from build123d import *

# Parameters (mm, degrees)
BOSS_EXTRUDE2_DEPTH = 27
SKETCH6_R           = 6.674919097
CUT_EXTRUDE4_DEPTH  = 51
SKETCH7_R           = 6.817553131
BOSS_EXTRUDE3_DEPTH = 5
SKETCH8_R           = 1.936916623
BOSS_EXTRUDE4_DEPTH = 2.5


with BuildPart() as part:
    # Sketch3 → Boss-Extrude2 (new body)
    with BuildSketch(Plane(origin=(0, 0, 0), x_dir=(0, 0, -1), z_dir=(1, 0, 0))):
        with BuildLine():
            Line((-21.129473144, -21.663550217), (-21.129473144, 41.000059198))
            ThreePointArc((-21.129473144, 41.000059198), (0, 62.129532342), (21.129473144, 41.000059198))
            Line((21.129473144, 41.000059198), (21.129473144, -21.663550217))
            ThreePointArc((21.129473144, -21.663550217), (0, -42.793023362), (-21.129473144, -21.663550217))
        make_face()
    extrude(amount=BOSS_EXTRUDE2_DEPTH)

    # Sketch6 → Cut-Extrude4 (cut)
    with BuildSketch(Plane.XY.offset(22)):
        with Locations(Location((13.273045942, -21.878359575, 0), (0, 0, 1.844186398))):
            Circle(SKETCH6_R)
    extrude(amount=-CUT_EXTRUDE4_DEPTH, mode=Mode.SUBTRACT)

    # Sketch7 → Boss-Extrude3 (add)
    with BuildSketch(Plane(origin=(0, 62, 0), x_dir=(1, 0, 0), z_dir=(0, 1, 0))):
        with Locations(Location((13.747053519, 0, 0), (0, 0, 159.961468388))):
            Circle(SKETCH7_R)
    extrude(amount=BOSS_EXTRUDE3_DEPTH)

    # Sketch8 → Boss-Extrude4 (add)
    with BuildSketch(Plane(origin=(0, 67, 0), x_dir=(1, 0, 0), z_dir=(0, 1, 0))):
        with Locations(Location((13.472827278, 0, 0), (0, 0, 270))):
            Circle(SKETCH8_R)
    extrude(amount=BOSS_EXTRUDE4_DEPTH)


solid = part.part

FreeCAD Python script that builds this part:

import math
import FreeCAD as App
import Part
import Sketcher
from FreeCAD import Vector
Q = App.Units.Quantity

doc = App.newDocument("Part")
body = doc.addObject("PartDesign::Body", "Body")

sketch1 = body.newObject("Sketcher::SketchObject", "Sketch")
sketch1.AttachmentSupport = (doc.getObject("YZ_Plane"), [""])
sketch1.MapMode = "FlatFace"
sketch1.addGeometry(Part.LineSegment(Vector(41, 21, 0), Vector(-22, 21, 0)), False)
sketch1.addGeometry(Part.ArcOfCircle(Part.Circle(Vector(-22, 0, 0), Vector(0, 0, 1), 21), math.radians(90), math.radians(270)), False)
sketch1.addGeometry(Part.LineSegment(Vector(-22, -21, 0), Vector(41, -21, 0)), False)
sketch1.addGeometry(Part.ArcOfCircle(Part.Circle(Vector(41, 0, 0), Vector(0, 0, 1), 21), math.radians(-90), math.radians(90)), False)
sketch1.addConstraint(Sketcher.Constraint("Tangent", 0, 2, 1, 1))
sketch1.addConstraint(Sketcher.Constraint("Tangent", 1, 2, 2, 1))
sketch1.addConstraint(Sketcher.Constraint("Tangent", 2, 2, 3, 1))
sketch1.addConstraint(Sketcher.Constraint("Tangent", 3, 2, 0, 1))
sketch1.addConstraint(Sketcher.Constraint("Horizontal", 0))
sketch1.addConstraint(Sketcher.Constraint("Horizontal", 2))
sketch1.addConstraint(Sketcher.Constraint("PointOnObject", 1, 3, -1))
sketch1.addConstraint(Sketcher.Constraint("Radius", 1, Q("21.129473 mm")))
sketch1.addConstraint(Sketcher.Constraint("DistanceX", 0, 2, 0, 1, Q("62.663609 mm")))
sketch1.addConstraint(Sketcher.Constraint("DistanceX", 1, 3, -1, 1, Q("21.66355 mm")))
pad1 = body.newObject("PartDesign::Pad", "Pad")
pad1.Profile = sketch1
pad1.Length = 27

sketch2 = body.newObject("Sketcher::SketchObject", "Sketch001")
sketch2.AttachmentSupport = (doc.getObject("XY_Plane"), [""])
sketch2.MapMode = "FlatFace"
sketch2.AttachmentOffset = App.Placement(Vector(0, 0, 22), App.Rotation())
sketch2.addGeometry(Part.Circle(Vector(13, -22, 0), Vector(0, 0, 1), 7), False)
sketch2.addConstraint(Sketcher.Constraint("Diameter", 0, Q("13.349838 mm")))
sketch2.addConstraint(Sketcher.Constraint("DistanceY", 0, 3, -1, 1, Q("21.87836 mm")))
sketch2.addConstraint(Sketcher.Constraint("DistanceX", -1, 1, 0, 3, Q("13.273046 mm")))
pocket1 = body.newObject("PartDesign::Pocket", "Pocket")
pocket1.Profile = sketch2
pocket1.Length = 51

sketch3 = body.newObject("Sketcher::SketchObject", "Sketch002")
sketch3.AttachmentSupport = (doc.getObject("XZ_Plane"), [""])
sketch3.MapMode = "FlatFace"
sketch3.AttachmentOffset = App.Placement(Vector(0, 0, -62), App.Rotation())
sketch3.addGeometry(Part.Circle(Vector(14, 0, 0), Vector(0, 0, 1), 7), False)
sketch3.addConstraint(Sketcher.Constraint("PointOnObject", 0, 3, -1))
sketch3.addConstraint(Sketcher.Constraint("Diameter", 0, Q("13.635106 mm")))
sketch3.addConstraint(Sketcher.Constraint("DistanceX", -1, 1, 0, 3, Q("13.747054 mm")))
pad2 = body.newObject("PartDesign::Pad", "Pad001")
pad2.Profile = sketch3
pad2.Length = 5
pad2.Reversed = True

sketch4 = body.newObject("Sketcher::SketchObject", "Sketch003")
sketch4.AttachmentSupport = (doc.getObject("XZ_Plane"), [""])
sketch4.MapMode = "FlatFace"
sketch4.AttachmentOffset = App.Placement(Vector(0, 0, -67), App.Rotation())
sketch4.addGeometry(Part.Circle(Vector(13.5, 0, 0), Vector(0, 0, 1), 1.9), False)
sketch4.addConstraint(Sketcher.Constraint("PointOnObject", 0, 3, -1))
sketch4.addConstraint(Sketcher.Constraint("Diameter", 0, Q("3.873833 mm")))
sketch4.addConstraint(Sketcher.Constraint("DistanceX", -1, 1, 0, 3, Q("13.472827 mm")))
pad3 = body.newObject("PartDesign::Pad", "Pad002")
pad3.Profile = sketch4
pad3.Length = 2.5
pad3.Reversed = True

doc.recompute()
